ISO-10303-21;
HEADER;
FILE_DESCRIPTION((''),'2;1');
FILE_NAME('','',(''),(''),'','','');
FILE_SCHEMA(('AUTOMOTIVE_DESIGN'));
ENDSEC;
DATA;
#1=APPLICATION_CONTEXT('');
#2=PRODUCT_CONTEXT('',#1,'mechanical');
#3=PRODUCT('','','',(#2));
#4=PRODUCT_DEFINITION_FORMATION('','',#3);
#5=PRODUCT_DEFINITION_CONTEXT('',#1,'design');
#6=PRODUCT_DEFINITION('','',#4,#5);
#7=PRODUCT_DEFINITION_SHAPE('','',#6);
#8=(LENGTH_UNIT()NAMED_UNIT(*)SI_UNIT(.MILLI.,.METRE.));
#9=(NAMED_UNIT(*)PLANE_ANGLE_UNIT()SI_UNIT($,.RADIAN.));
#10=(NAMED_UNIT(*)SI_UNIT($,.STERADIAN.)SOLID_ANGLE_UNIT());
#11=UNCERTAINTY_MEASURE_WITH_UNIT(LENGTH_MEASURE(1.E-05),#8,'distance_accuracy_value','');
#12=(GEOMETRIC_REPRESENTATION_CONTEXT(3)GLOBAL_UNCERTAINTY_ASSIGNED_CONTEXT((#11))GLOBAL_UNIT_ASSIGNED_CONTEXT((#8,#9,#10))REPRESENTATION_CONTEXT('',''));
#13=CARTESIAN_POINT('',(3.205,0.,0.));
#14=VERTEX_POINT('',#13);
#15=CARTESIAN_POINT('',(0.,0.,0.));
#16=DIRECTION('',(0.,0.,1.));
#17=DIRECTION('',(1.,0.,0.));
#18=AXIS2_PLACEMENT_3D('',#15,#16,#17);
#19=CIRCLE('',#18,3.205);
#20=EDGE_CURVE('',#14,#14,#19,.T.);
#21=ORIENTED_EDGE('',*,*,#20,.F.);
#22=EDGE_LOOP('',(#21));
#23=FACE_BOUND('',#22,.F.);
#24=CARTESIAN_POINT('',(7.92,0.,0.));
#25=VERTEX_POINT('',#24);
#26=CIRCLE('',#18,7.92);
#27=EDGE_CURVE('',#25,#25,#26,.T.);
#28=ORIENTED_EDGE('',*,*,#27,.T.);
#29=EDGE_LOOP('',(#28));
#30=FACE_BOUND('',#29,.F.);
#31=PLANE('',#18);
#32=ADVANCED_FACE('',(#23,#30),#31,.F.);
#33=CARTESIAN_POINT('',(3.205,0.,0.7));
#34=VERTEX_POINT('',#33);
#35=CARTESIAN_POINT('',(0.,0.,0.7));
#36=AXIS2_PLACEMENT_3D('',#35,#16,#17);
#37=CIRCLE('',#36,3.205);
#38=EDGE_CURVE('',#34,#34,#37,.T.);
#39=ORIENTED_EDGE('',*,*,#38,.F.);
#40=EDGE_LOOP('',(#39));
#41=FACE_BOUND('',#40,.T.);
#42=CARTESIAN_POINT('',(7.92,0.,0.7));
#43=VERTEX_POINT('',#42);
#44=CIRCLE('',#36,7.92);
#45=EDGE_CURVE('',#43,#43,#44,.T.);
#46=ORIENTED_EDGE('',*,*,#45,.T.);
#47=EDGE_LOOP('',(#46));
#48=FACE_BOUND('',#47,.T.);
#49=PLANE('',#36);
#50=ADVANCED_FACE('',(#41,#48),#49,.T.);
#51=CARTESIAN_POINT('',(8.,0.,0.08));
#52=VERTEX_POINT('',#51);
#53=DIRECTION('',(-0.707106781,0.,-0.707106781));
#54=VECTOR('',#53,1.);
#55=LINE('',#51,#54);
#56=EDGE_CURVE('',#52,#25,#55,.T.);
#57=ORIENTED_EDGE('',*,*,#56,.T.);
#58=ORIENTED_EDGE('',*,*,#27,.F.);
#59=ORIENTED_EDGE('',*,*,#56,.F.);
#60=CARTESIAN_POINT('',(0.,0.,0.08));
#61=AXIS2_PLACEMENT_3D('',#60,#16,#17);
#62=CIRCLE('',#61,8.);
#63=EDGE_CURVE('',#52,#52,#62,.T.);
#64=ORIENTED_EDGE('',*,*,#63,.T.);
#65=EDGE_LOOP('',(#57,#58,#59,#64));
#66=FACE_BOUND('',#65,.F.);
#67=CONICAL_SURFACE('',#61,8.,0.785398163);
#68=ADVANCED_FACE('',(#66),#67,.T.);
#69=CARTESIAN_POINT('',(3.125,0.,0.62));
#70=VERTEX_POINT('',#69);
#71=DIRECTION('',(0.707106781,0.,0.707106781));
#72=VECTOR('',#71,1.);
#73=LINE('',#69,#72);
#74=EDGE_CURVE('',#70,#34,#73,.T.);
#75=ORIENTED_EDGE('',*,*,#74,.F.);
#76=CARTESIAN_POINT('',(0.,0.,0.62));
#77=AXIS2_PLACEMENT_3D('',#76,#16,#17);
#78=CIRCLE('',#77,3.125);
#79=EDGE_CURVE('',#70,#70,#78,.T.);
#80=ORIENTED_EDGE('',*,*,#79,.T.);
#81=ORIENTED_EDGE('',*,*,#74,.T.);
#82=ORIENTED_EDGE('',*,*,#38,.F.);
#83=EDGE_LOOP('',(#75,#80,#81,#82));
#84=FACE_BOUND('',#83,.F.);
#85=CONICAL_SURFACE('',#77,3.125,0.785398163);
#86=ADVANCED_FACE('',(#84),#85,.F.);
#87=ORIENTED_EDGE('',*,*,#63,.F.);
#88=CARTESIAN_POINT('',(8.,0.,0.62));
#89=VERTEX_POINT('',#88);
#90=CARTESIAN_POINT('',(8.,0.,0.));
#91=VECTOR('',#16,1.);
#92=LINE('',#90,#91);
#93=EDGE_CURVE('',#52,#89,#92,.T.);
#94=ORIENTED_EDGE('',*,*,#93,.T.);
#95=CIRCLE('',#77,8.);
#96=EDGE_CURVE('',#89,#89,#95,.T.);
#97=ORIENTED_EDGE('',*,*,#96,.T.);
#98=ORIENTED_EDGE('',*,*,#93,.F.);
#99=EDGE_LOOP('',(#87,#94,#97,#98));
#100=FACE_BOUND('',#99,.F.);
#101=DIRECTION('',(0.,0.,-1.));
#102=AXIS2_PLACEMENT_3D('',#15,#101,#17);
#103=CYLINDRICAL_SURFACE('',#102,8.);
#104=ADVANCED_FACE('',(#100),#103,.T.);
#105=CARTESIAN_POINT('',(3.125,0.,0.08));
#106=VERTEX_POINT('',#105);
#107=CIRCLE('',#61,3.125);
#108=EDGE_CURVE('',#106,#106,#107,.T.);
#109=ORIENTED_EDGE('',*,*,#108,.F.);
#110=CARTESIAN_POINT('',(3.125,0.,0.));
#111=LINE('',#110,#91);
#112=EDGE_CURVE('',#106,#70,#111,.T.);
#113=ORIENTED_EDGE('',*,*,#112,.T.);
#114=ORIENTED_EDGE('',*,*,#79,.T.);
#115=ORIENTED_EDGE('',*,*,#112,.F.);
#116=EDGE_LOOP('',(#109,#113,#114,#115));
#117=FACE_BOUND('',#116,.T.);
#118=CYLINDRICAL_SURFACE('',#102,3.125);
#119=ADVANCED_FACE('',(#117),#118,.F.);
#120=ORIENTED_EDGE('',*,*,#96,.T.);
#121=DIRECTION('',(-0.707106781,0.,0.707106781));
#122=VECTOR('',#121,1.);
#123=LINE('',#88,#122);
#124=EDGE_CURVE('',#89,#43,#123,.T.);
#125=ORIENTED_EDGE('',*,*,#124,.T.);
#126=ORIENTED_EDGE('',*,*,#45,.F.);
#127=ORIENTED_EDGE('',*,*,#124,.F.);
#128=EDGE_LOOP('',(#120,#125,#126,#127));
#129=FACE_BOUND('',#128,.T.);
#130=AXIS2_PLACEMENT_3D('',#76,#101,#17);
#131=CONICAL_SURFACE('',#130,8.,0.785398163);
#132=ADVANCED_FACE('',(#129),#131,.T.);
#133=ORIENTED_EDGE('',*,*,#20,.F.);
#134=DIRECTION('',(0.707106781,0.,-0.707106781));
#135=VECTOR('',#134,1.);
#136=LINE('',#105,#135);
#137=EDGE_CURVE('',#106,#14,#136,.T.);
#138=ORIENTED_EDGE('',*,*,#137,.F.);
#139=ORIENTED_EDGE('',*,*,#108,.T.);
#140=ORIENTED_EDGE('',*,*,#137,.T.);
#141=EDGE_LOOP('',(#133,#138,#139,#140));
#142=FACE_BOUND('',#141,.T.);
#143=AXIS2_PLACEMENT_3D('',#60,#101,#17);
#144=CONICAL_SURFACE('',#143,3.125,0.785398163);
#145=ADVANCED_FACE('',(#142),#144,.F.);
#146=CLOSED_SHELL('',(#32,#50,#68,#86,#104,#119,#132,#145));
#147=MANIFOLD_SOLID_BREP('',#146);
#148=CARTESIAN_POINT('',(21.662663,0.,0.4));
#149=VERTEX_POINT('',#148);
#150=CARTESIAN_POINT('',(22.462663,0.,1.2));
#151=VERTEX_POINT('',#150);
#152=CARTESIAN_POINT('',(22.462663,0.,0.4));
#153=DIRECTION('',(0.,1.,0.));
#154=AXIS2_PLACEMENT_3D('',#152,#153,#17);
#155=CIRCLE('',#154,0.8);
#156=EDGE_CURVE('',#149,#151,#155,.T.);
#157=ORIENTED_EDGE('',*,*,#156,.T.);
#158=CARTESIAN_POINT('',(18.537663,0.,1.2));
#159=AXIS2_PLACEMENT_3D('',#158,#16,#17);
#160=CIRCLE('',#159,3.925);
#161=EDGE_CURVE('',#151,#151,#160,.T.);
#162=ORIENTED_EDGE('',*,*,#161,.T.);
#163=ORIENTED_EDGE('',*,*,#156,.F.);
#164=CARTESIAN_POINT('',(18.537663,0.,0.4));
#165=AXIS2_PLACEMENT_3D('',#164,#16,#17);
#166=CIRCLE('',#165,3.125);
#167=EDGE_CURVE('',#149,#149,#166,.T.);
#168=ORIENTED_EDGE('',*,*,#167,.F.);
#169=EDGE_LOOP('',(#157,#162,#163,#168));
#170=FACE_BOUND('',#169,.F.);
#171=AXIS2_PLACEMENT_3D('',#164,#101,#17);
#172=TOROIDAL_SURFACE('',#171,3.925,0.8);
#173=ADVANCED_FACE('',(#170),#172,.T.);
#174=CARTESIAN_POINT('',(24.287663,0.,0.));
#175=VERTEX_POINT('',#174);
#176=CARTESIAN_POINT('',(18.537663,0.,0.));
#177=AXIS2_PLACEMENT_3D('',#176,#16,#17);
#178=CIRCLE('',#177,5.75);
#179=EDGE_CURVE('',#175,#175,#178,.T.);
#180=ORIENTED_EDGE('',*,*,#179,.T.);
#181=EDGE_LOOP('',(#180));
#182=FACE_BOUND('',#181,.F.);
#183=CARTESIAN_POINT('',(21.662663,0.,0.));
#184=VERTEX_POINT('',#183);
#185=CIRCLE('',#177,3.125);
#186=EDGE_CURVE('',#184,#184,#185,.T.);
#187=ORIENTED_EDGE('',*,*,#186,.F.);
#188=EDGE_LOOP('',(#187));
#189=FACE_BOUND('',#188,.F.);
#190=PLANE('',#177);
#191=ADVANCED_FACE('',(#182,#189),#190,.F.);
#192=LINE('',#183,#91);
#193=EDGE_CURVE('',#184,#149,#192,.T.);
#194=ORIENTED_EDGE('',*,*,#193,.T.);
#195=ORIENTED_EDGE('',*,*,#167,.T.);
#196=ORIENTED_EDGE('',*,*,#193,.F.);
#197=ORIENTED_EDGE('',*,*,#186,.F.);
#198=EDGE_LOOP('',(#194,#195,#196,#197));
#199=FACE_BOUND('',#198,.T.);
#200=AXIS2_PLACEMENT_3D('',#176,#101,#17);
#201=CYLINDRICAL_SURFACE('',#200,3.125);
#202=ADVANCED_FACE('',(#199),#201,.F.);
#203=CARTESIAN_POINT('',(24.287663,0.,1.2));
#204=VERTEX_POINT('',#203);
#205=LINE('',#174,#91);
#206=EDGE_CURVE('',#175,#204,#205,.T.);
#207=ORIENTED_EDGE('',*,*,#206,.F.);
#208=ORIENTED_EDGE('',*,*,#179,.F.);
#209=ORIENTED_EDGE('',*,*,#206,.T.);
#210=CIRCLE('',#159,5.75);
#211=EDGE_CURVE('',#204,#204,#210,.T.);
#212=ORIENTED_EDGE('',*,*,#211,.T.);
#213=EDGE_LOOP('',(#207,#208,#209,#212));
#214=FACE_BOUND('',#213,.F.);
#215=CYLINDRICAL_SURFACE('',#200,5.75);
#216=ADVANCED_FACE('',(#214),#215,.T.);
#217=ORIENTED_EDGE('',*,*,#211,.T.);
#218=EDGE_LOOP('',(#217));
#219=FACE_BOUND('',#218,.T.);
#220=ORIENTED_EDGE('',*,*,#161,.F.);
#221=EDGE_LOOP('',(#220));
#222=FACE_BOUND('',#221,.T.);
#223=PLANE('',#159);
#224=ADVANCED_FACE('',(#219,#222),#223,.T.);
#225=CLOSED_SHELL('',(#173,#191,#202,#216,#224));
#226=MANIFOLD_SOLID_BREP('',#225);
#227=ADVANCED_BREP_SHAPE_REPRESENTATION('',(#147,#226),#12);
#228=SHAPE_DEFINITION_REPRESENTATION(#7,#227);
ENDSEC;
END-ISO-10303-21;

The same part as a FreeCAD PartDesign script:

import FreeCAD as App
import Part
import Sketcher
Q = App.Units.Quantity


def edges_at(feature, points):
    """Names of the edges that pass closest to the given points."""
    edges = feature.Shape.Edges
    near = lambda p: min(range(len(edges)), key=lambda i: edges[i].distToShape(Part.Vertex(*p))[0])
    return sorted({f"Edge{near(p) + 1}" for p in points})

doc = App.newDocument("Part")
body = doc.addObject("PartDesign::Body", "Body")

# Sketch on XY plane
sketch1 = doc.addObject("Sketcher::SketchObject", "Sketch")
body.addObject(sketch1)
sketch1.AttachmentSupport = (doc.XY_Plane, [""])
sketch1.MapMode = "FlatFace"
sketch1.addGeometry([
    Part.Circle(App.Vector(0, 0, 0), App.Vector(0, 0, 1), 8),
    Part.Circle(App.Vector(0, 0, 0), App.Vector(0, 0, 1), 3.1),
], False)
sketch1.addConstraint([
    Sketcher.Constraint("Coincident", 0, 3, -1, 1),
    Sketcher.Constraint("Coincident", 1, 3, -1, 1),
    Sketcher.Constraint("Diameter", 0, Q("16 mm")),
    Sketcher.Constraint("Diameter", 1, Q("6.25 mm")),
])
pad1 = doc.addObject("PartDesign::Pad", "Pad")
body.addObject(pad1)
pad1.Profile = sketch1
pad1.Length = 0.7
doc.recompute()

chamfer = doc.addObject("PartDesign::Chamfer", "Chamfer")
body.addObject(chamfer)
chamfer.Base = (pad1, edges_at(pad1, [
    (-8, 0, 0),
    (-8, 0, 0.7),
    (-3.125, 0, 0),
    (-3.125, 0, 0.7),
]))
chamfer.Size = 0.08
body2 = doc.addObject("PartDesign::Body", "Body001")

# Sketch on XY plane
sketch2 = doc.addObject("Sketcher::SketchObject", "Sketch001")
body2.addObject(sketch2)
sketch2.AttachmentSupport = (doc.getObject("XY_Plane001"), [""])
sketch2.MapMode = "FlatFace"
sketch2.addGeometry([
    Part.Circle(App.Vector(18.5, 0, 0), App.Vector(0, 0, 1), 5.8),
    Part.Circle(App.Vector(18.5, 0, 0), App.Vector(0, 0, 1), 3.1),
], False)
sketch2.addConstraint([
    Sketcher.Constraint("Coincident", 1, 3, 0, 3),
    Sketcher.Constraint("PointOnObject", 0, 3, -1),
    Sketcher.Constraint("Diameter", 0, Q("11.5 mm")),
    Sketcher.Constraint("Diameter", 1, Q("6.25 mm")),
    Sketcher.Constraint("DistanceX", -1, 1, 0, 3, Q("18.537663 mm")),
])
pad2 = doc.addObject("PartDesign::Pad", "Pad001")
body2.addObject(pad2)
pad2.Profile = sketch2
pad2.Length = 1.2
doc.recompute()

fillet = doc.addObject("PartDesign::Fillet", "Fillet")
body2.addObject(fillet)
fillet.Base = (pad2, edges_at(pad2, [(15.413, 0, 1.2)]))
fillet.Radius = 0.8

doc.recompute()
